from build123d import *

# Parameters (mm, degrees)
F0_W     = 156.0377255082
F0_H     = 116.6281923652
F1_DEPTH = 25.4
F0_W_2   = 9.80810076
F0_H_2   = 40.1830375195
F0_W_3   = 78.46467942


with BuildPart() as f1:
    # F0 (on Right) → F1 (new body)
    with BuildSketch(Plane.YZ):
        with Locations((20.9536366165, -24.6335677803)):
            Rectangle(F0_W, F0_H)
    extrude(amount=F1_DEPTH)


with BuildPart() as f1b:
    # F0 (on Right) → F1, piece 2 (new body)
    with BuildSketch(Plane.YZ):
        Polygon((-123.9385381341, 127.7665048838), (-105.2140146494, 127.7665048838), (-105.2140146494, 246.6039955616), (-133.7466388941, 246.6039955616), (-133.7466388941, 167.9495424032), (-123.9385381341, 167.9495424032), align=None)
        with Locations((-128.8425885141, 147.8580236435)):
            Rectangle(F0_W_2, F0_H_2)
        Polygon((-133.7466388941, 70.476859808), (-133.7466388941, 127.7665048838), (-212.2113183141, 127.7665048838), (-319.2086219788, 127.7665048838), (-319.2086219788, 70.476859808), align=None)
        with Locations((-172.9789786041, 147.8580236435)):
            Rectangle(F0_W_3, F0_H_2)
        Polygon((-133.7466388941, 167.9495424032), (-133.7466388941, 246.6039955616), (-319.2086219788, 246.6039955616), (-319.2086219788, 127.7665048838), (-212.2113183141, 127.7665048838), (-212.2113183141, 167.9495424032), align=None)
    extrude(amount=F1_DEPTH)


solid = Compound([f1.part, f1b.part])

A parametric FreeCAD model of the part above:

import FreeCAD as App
import Part
import Sketcher


def add_polygon(sketch, points):
    """Adds a closed chain of lines whose ends are joined by coincident constraints."""
    first, n = sketch.GeometryCount, len(points)
    for a, b in zip(points, points[1:] + points[:1]):
        sketch.addGeometry(Part.LineSegment(App.Vector(*a, 0), App.Vector(*b, 0)), False)
    for i in range(n):
        sketch.addConstraint(Sketcher.Constraint("Coincident", first + i, 2, first + (i + 1) % n, 1))

doc = App.newDocument("Part")
params = doc.addObject("Spreadsheet::Sheet", "Params")
for row, (alias, value) in enumerate([
    ("pad1_length", "1 in"),
    ("pad2_length", "1 in"),
], start=1):
    params.set(f"A{row}", alias)
    params.set(f"B{row}", "=" + value)
    params.setAlias(f"B{row}", alias)

body = doc.addObject("PartDesign::Body", "Body")

# Sketch on YZ plane
sketch1 = doc.addObject("Sketcher::SketchObject", "Sketch")
body.addObject(sketch1)
sketch1.AttachmentSupport = (doc.YZ_Plane, [""])
sketch1.MapMode = "FlatFace"
add_polygon(sketch1, [(-57, 34), (-57, -83), (99, -83), (99, 34)])  # lines 0-3
sketch1.addConstraint(Sketcher.Constraint("Vertical", 0))
sketch1.addConstraint(Sketcher.Constraint("Horizontal", 1))
sketch1.addConstraint(Sketcher.Constraint("Vertical", 2))
sketch1.addConstraint(Sketcher.Constraint("Horizontal", 3))
sketch1.addConstraint(Sketcher.Constraint("DistanceX", -1, 1, 1, 2, 98.972499))
sketch1.addConstraint(Sketcher.Constraint("DistanceX", 1, 1, 1, 2, 156.037726))
sketch1.addConstraint(Sketcher.Constraint("DistanceY", 0, 2, 0, 1, 116.628192))
sketch1.addConstraint(Sketcher.Constraint("DistanceY", -1, 1, 2, 2, 33.680528))
pad1 = doc.addObject("PartDesign::Pad", "Pad")
body.addObject(pad1)
pad1.Profile = sketch1
pad1.setExpression("Length", "Params.pad1_length")
body2 = doc.addObject("PartDesign::Body", "Body001")

# Sketch on YZ plane
sketch2 = doc.addObject("Sketcher::SketchObject", "Sketch001")
body2.addObject(sketch2)
sketch2.AttachmentSupport = (doc.getObject("YZ_Plane001"), [""])
sketch2.MapMode = "FlatFace"
add_polygon(sketch2, [(-124, 128), (-105, 128), (-105, 247), (-319, 247), (-319, 70), (-134, 70), (-134, 128)])  # lines 0-6
sketch2.addConstraint(Sketcher.Constraint("Horizontal", 0))
sketch2.addConstraint(Sketcher.Constraint("Vertical", 1))
sketch2.addConstraint(Sketcher.Constraint("Horizontal", 2))
sketch2.addConstraint(Sketcher.Constraint("Vertical", 3))
sketch2.addConstraint(Sketcher.Constraint("Horizontal", 4))
sketch2.addConstraint(Sketcher.Constraint("Vertical", 5))
sketch2.addConstraint(Sketcher.Constraint("Horizontal", 6))
sketch2.addConstraint(Sketcher.Constraint("DistanceX", 6, 1, 6, 2, 9.808101))
sketch2.addConstraint(Sketcher.Constraint("DistanceY", 1, 1, 1, 2, 118.837491))
sketch2.addConstraint(Sketcher.Constraint("DistanceX", 0, 1, 0, 2, 18.724523))
sketch2.addConstraint(Sketcher.Constraint("DistanceX", 2, 2, 2, 1, 213.994607))
sketch2.addConstraint(Sketcher.Constraint("DistanceY", 3, 2, 3, 1, 176.127136))
sketch2.addConstraint(Sketcher.Constraint("DistanceX", 2, 2, -1, 1, 319.208622))
sketch2.addConstraint(Sketcher.Constraint("DistanceY", -1, 1, 3, 2, 70.47686))
pad2 = doc.addObject("PartDesign::Pad", "Pad001")
body2.addObject(pad2)
pad2.Profile = sketch2
pad2.setExpression("Length", "Params.pad2_length")

doc.recompute()
